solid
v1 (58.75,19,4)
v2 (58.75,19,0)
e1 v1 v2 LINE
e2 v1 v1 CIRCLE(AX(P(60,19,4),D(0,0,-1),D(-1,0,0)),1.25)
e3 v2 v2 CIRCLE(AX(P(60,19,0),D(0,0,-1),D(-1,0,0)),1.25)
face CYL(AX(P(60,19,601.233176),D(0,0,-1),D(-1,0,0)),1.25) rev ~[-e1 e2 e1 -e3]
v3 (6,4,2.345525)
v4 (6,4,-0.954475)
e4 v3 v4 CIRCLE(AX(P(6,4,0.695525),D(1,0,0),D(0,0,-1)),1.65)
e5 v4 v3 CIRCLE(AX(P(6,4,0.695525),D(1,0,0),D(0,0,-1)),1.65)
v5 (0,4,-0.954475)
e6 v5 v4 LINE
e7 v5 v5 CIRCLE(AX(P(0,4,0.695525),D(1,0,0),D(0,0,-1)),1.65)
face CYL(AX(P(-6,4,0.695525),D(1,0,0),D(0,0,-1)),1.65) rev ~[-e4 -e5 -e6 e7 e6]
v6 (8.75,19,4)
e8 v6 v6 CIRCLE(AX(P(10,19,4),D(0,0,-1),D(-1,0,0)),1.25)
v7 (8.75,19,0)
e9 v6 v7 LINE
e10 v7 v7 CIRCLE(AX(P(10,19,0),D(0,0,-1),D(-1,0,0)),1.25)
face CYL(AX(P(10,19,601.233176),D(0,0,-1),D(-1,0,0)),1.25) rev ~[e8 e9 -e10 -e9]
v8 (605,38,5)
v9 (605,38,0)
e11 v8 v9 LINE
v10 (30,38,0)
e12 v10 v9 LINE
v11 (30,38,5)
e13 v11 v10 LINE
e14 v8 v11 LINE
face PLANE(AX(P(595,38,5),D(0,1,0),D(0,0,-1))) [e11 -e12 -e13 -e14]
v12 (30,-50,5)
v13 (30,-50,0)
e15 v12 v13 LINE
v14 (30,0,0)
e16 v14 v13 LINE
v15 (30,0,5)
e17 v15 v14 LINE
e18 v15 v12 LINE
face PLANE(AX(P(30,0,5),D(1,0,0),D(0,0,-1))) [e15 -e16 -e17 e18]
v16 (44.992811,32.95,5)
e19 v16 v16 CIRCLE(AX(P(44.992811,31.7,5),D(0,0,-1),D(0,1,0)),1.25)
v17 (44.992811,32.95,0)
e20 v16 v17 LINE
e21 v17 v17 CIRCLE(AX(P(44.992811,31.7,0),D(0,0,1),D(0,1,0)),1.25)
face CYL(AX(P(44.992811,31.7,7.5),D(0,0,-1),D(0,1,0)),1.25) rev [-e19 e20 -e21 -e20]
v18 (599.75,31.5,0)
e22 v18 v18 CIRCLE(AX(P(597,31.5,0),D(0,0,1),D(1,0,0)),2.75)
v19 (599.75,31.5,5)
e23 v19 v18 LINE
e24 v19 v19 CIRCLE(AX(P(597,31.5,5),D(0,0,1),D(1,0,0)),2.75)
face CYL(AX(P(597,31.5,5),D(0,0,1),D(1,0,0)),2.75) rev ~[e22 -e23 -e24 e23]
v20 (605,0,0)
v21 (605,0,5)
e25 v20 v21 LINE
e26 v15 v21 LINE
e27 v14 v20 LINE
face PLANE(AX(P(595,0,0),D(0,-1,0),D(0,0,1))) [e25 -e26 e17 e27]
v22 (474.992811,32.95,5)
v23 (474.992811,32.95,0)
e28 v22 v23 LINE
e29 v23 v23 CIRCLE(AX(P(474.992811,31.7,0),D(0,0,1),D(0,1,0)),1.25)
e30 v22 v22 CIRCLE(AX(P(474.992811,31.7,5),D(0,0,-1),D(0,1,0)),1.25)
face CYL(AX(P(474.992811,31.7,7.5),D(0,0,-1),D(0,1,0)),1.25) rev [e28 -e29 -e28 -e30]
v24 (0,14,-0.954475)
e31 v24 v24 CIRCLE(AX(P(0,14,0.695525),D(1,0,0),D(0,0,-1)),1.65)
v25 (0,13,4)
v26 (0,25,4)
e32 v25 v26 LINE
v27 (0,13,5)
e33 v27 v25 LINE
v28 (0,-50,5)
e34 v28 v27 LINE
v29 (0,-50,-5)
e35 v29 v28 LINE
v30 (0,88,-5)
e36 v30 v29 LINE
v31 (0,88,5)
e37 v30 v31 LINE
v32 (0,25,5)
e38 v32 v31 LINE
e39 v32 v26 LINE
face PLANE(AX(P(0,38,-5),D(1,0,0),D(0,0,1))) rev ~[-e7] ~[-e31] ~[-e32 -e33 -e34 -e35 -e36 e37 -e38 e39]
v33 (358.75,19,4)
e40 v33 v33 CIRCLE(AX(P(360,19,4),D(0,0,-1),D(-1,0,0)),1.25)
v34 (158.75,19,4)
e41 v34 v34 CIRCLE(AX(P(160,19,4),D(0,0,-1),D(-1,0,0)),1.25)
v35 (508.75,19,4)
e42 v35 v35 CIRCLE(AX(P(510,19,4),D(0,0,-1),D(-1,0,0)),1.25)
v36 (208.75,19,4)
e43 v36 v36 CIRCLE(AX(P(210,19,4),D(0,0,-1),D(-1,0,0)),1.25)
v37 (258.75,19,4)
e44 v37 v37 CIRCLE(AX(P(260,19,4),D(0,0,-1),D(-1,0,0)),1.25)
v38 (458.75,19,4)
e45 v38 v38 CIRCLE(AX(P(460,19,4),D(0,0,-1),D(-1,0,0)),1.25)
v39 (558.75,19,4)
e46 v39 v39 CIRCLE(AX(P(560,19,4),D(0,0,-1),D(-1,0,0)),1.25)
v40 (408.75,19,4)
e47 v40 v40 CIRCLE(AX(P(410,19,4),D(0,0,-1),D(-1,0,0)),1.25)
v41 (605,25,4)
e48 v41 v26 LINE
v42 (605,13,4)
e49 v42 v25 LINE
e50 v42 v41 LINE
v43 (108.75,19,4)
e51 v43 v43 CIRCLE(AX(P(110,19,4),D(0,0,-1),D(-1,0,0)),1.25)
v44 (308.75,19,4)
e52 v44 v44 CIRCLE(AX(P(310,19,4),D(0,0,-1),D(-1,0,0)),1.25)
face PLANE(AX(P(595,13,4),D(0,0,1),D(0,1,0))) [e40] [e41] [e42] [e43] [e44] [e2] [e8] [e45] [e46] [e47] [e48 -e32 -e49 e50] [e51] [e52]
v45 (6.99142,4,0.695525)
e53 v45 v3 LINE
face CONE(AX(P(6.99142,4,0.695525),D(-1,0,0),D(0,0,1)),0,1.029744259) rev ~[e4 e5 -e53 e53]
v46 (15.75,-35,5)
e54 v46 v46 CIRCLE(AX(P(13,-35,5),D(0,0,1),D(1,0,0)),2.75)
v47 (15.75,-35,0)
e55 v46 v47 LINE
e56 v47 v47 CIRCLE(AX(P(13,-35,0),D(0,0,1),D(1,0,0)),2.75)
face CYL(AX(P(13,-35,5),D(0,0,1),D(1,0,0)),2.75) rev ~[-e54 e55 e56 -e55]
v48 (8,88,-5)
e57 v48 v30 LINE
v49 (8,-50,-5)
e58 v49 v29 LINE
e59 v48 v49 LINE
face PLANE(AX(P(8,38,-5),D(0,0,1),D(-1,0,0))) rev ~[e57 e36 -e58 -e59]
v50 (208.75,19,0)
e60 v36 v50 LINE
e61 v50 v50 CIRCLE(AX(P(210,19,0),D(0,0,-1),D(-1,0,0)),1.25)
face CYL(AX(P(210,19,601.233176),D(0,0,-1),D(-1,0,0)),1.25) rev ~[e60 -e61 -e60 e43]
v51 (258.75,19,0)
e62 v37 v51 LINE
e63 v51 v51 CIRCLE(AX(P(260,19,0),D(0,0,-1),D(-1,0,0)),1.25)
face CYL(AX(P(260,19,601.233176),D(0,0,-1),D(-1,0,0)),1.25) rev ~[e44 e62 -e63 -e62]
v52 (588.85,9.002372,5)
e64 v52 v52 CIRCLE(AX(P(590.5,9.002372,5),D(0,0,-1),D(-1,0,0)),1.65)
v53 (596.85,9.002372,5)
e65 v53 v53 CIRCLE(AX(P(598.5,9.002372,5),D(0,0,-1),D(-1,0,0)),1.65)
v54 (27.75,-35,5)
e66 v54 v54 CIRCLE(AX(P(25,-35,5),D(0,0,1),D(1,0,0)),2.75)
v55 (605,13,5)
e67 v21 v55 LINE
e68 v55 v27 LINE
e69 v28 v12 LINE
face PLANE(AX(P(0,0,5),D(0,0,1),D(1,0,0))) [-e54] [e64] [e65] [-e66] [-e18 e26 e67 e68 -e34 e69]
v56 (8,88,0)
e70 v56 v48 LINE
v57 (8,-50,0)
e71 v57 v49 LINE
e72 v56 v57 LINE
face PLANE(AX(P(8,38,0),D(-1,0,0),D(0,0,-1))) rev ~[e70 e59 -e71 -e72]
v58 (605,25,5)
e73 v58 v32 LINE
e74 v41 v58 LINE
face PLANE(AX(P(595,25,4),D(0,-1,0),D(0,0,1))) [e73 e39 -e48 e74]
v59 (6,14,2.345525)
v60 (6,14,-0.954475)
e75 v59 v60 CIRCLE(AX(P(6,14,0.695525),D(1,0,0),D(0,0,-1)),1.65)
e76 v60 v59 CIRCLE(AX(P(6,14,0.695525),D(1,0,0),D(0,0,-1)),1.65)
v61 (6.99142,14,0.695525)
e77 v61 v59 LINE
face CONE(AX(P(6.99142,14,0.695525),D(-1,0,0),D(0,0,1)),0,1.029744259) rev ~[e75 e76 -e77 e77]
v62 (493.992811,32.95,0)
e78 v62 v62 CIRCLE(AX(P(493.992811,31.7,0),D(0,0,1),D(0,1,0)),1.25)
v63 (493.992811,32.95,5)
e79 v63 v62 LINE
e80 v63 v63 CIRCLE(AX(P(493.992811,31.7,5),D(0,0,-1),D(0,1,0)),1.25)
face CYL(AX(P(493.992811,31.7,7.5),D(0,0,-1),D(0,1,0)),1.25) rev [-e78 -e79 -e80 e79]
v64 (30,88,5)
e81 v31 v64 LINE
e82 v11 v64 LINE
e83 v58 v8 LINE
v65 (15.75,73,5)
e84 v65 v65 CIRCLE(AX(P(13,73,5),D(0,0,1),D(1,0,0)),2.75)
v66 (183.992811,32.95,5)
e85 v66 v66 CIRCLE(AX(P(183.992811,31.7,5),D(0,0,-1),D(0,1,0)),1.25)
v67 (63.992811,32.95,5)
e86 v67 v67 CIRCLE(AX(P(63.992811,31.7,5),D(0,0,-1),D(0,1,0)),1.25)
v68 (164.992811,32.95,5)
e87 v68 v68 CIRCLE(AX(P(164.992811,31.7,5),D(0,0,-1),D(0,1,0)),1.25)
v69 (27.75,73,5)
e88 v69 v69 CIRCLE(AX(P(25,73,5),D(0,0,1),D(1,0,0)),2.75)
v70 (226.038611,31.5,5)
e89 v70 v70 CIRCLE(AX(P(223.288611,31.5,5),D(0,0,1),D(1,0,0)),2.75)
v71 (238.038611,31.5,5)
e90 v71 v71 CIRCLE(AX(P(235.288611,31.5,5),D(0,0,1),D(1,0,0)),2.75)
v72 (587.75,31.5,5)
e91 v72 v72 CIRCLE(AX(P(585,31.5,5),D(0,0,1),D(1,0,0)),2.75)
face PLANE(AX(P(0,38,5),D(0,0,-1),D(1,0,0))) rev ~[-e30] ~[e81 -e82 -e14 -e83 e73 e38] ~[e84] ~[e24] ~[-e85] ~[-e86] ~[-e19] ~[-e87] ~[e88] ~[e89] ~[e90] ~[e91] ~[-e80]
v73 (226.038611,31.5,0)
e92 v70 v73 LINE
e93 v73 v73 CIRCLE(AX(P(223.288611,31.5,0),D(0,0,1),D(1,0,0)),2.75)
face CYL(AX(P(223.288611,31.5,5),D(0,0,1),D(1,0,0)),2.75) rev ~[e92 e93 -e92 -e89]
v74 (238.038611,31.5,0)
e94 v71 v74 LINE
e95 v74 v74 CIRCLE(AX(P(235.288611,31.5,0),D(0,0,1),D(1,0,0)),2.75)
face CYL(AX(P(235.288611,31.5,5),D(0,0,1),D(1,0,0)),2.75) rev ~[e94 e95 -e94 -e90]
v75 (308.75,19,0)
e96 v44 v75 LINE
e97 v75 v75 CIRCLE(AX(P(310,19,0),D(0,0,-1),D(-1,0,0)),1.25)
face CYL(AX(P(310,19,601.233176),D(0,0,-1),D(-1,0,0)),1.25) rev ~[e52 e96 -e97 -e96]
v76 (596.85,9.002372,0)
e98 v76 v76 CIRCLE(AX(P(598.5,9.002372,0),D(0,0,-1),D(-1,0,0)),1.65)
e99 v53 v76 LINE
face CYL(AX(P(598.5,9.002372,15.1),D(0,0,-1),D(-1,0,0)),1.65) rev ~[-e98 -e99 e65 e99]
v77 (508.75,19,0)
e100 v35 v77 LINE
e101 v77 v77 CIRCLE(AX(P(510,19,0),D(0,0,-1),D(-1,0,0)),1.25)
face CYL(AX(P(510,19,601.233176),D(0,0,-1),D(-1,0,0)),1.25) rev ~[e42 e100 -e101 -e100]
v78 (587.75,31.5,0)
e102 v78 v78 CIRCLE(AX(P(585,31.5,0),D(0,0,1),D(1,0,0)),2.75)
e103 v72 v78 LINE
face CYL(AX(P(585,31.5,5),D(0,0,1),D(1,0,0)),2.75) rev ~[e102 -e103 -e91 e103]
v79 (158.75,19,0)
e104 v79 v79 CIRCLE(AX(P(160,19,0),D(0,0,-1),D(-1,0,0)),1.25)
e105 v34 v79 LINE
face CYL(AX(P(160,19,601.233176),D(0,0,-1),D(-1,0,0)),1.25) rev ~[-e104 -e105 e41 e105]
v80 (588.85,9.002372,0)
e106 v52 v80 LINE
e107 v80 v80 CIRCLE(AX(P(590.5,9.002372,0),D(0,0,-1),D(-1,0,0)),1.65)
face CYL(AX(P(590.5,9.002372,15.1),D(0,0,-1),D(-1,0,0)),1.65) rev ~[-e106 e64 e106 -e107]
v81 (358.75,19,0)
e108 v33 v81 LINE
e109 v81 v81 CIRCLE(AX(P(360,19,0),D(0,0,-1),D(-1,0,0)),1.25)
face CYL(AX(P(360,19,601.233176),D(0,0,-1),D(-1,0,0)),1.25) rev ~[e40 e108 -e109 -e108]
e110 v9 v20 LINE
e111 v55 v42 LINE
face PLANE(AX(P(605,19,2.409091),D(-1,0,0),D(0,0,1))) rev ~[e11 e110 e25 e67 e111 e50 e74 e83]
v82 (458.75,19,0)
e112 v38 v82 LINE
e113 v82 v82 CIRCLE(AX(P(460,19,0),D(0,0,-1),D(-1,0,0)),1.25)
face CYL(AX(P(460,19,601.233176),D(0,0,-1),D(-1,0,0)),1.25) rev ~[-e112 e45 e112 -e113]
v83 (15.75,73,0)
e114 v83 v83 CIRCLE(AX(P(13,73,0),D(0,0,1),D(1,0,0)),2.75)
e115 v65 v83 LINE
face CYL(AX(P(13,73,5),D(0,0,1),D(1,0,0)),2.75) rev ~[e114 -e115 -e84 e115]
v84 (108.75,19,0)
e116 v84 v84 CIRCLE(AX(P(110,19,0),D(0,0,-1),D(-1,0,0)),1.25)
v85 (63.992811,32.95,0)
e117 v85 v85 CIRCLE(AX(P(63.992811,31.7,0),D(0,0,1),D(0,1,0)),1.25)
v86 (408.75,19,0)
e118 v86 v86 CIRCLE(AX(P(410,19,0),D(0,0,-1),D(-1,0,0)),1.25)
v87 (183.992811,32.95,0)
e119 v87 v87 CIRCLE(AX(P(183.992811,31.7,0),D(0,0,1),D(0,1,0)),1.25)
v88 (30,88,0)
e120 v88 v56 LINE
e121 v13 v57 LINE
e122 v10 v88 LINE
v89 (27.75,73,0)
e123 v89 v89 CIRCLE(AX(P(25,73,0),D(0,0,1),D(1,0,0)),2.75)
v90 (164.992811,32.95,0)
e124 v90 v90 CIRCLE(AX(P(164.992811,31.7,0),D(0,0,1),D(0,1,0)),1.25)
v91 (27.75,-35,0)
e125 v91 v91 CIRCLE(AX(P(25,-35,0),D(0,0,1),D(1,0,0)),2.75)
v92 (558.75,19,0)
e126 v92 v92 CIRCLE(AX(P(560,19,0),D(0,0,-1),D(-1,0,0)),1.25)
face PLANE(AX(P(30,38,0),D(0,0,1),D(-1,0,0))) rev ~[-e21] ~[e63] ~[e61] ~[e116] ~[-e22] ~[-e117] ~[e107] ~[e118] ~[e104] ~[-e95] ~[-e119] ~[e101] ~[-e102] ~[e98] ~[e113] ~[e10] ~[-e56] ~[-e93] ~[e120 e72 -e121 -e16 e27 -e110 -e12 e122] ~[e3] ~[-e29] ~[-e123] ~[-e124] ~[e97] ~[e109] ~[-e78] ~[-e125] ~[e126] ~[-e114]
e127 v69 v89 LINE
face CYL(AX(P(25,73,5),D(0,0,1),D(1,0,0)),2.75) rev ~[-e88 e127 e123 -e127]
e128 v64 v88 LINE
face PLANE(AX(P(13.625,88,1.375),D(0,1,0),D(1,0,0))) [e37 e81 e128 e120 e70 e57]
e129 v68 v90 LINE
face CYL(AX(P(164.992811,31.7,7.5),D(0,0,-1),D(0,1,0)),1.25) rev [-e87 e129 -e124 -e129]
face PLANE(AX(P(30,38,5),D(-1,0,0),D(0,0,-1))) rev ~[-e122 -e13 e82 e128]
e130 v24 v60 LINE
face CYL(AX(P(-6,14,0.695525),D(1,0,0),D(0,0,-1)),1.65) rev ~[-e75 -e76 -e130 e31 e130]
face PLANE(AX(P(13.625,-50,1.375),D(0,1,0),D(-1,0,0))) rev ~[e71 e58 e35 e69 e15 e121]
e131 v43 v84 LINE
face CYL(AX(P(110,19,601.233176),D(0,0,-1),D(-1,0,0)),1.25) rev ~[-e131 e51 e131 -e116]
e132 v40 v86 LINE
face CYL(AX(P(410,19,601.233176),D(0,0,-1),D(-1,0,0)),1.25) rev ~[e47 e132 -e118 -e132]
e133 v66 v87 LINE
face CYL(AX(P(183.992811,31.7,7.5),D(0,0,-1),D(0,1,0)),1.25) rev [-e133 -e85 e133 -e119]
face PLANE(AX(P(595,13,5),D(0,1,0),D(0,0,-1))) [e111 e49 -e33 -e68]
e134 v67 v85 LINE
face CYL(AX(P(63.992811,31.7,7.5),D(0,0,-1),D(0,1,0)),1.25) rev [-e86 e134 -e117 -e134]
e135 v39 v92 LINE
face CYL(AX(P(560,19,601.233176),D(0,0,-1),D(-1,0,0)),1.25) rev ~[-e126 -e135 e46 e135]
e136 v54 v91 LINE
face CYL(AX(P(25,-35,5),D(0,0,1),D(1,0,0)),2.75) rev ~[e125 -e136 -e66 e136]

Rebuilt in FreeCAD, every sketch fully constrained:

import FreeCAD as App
import Part
import Sketcher
Q = App.Units.Quantity

doc = App.newDocument("Part")
body = doc.addObject("PartDesign::Body", "Body")

sketch1 = body.newObject("Sketcher::SketchObject", "Sketch")
sketch1.AttachmentSupport = (doc.getObject("XY_Plane"), [""])
sketch1.MapMode = "FlatFace"
sketch1.addGeometry([
    Part.LineSegment(App.Vector(0, 38, 0), App.Vector(0, 0, 0)),
    Part.LineSegment(App.Vector(0, 0, 0), App.Vector(595, 0, 0)),
    Part.LineSegment(App.Vector(595, 0, 0), App.Vector(595, 38, 0)),
    Part.LineSegment(App.Vector(595, 38, 0), App.Vector(0, 38, 0)),
], False)
sketch1.addConstraint([
    Sketcher.Constraint("Coincident", 0, 2, 1, 1),
    Sketcher.Constraint("Coincident", 1, 2, 2, 1),
    Sketcher.Constraint("Coincident", 2, 2, 3, 1),
    Sketcher.Constraint("Coincident", 3, 2, 0, 1),
    Sketcher.Constraint("Vertical", 0),
    Sketcher.Constraint("Horizontal", 1),
    Sketcher.Constraint("Vertical", 2),
    Sketcher.Constraint("Horizontal", 3),
    Sketcher.Constraint("Coincident", 0, 2, -1, 1),
    Sketcher.Constraint("DistanceX", 1, 1, 1, 2, Q("595 mm")),
    Sketcher.Constraint("DistanceY", 0, 2, 0, 1, Q("38 mm")),
])
pad1 = body.newObject("PartDesign::Pad", "Pad")
pad1.Profile = sketch1
pad1.Length = 5

sketch2 = body.newObject("Sketcher::SketchObject", "Sketch001")
sketch2.AttachmentSupport = (doc.getObject("XY_Plane"), [""])
sketch2.MapMode = "FlatFace"
sketch2.AttachmentOffset = App.Placement(App.Vector(0, 0, 5), App.Rotation())
sketch2.addGeometry(Part.Circle(App.Vector(10, 19, 0), App.Vector(0, 0, 1), 1.2), False)
sketch2.addConstraint([
    Sketcher.Constraint("Diameter", 0, Q("2.5 mm")),
    Sketcher.Constraint("DistanceX", -1, 1, 0, 3, Q("10 mm")),
    Sketcher.Constraint("DistanceY", -1, 1, 0, 3, Q("19 mm")),
])
doc.recompute()
hole = body.newObject("PartDesign::Hole", "Hole")
hole.Profile = sketch2
hole.ThreadType = "None"
hole.Diameter = 2.5
hole.DepthType = "ThroughAll"
doc.recompute()

linearpattern = body.newObject("PartDesign::LinearPattern", "LinearPattern")
linearpattern.Originals = [hole]
linearpattern.Direction = (doc.getObject("X_Axis"), [""])
linearpattern.Mode = "offset"
linearpattern.Offset = 50
linearpattern.Occurrences = 12
body.Tip = linearpattern

sketch3 = body.newObject("Sketcher::SketchObject", "Sketch002")
sketch3.AttachmentSupport = (doc.getObject("XY_Plane"), [""])
sketch3.MapMode = "FlatFace"
sketch3.AttachmentOffset = App.Placement(App.Vector(0, 0, 5), App.Rotation())
sketch3.addGeometry([
    Part.LineSegment(App.Vector(0, 25, 0), App.Vector(0, 13, 0)),
    Part.LineSegment(App.Vector(0, 13, 0), App.Vector(595, 13, 0)),
    Part.LineSegment(App.Vector(595, 13, 0), App.Vector(595, 25, 0)),
    Part.LineSegment(App.Vector(595, 25, 0), App.Vector(0, 25, 0)),
], False)
sketch3.addConstraint([
    Sketcher.Constraint("Coincident", 0, 2, 1, 1),
    Sketcher.Constraint("Coincident", 1, 2, 2, 1),
    Sketcher.Constraint("Coincident", 2, 2, 3, 1),
    Sketcher.Constraint("Coincident", 3, 2, 0, 1),
    Sketcher.Constraint("Vertical", 0),
    Sketcher.Constraint("Horizontal", 1),
    Sketcher.Constraint("Vertical", 2),
    Sketcher.Constraint("Horizontal", 3),
    Sketcher.Constraint("PointOnObject", 0, 2, -2),
    Sketcher.Constraint("DistanceX", 1, 1, 1, 2, Q("595 mm")),
    Sketcher.Constraint("DistanceY", 0, 2, 0, 1, Q("12 mm")),
    Sketcher.Constraint("DistanceY", -1, 1, 0, 2, Q("13 mm")),
])
pocket1 = body.newObject("PartDesign::Pocket", "Pocket")
pocket1.Profile = sketch3
pocket1.Length = 1

sketch4 = body.newObject("Sketcher::SketchObject", "Sketch003")
sketch4.AttachmentSupport = (doc.getObject("YZ_Plane"), [""])
sketch4.MapMode = "FlatFace"
sketch4.addGeometry([
    Part.LineSegment(App.Vector(38, -5, 0), App.Vector(0, -5, 0)),
    Part.LineSegment(App.Vector(0, -5, 0), App.Vector(0, 0, 0)),
    Part.LineSegment(App.Vector(0, 0, 0), App.Vector(38, 0, 0)),
    Part.LineSegment(App.Vector(38, 0, 0), App.Vector(38, -5, 0)),
], False)
sketch4.addConstraint([
    Sketcher.Constraint("Coincident", 0, 2, 1, 1),
    Sketcher.Constraint("Coincident", 1, 2, 2, 1),
    Sketcher.Constraint("Coincident", 2, 2, 3, 1),
    Sketcher.Constraint("Coincident", 3, 2, 0, 1),
    Sketcher.Constraint("Horizontal", 0),
    Sketcher.Constraint("Vertical", 1),
    Sketcher.Constraint("Horizontal", 2),
    Sketcher.Constraint("Vertical", 3),
    Sketcher.Constraint("Coincident", 1, 2, -1, 1),
    Sketcher.Constraint("DistanceX", 0, 2, 0, 1, Q("38 mm")),
    Sketcher.Constraint("DistanceY", 1, 1, 1, 2, Q("5 mm")),
])
pad2 = body.newObject("PartDesign::Pad", "Pad001")
pad2.Profile = sketch4
pad2.Length = 8

sketch5 = body.newObject("Sketcher::SketchObject", "Sketch004")
sketch5.AttachmentSupport = (doc.getObject("YZ_Plane"), [""])
sketch5.MapMode = "FlatFace"
sketch5.addGeometry([
    Part.Circle(App.Vector(14, 0.7, 0), App.Vector(0, 0, 1), 1.6),
    Part.Circle(App.Vector(4, 0.7, 0), App.Vector(0, 0, 1), 1.6),
], False)
sketch5.addConstraint([
    Sketcher.Constraint("Equal", 0, 1),
    Sketcher.Constraint("Horizontal", 0, 3, 1, 3),
    Sketcher.Constraint("Diameter", 0, Q("3.3 mm")),
    Sketcher.Constraint("DistanceX", -1, 1, 0, 3, Q("14 mm")),
    Sketcher.Constraint("DistanceX", -1, 1, 1, 3, Q("4 mm")),
    Sketcher.Constraint("DistanceY", -1, 1, 0, 3, Q("0.695525 mm")),
])
doc.recompute()
hole2 = body.newObject("PartDesign::Hole", "Hole001")
hole2.Profile = sketch5
hole2.ThreadType = "None"
hole2.Diameter = 3.3
hole2.DepthType = "Dimension"
hole2.Depth = 6
hole2.DrillPoint = "Angled"
hole2.DrillPointAngle = 118
hole2.Reversed = True

sketch6 = body.newObject("Sketcher::SketchObject", "Sketch005")
sketch6.AttachmentSupport = (doc.getObject("YZ_Plane"), [""])
sketch6.MapMode = "FlatFace"
sketch6.AttachmentOffset = App.Placement(App.Vector(0, 0, 595), App.Rotation())
sketch6.addGeometry([
    Part.LineSegment(App.Vector(13, 5, 0), App.Vector(0, 5, 0)),
    Part.LineSegment(App.Vector(0, 5, 0), App.Vector(0, 0, 0)),
    Part.LineSegment(App.Vector(0, 0, 0), App.Vector(38, 0, 0)),
    Part.LineSegment(App.Vector(38, 0, 0), App.Vector(38, 5, 0)),
    Part.LineSegment(App.Vector(38, 5, 0), App.Vector(25, 5, 0)),
    Part.LineSegment(App.Vector(25, 5, 0), App.Vector(25, 4, 0)),
    Part.LineSegment(App.Vector(25, 4, 0), App.Vector(13, 4, 0)),
    Part.LineSegment(App.Vector(13, 4, 0), App.Vector(13, 5, 0)),
], False)
sketch6.addConstraint([
    Sketcher.Constraint("Coincident", 0, 2, 1, 1),
    Sketcher.Constraint("Coincident", 1, 2, 2, 1),
    Sketcher.Constraint("Coincident", 2, 2, 3, 1),
    Sketcher.Constraint("Coincident", 3, 2, 4, 1),
    Sketcher.Constraint("Coincident", 4, 2, 5, 1),
    Sketcher.Constraint("Coincident", 5, 2, 6, 1),
    Sketcher.Constraint("Coincident", 6, 2, 7, 1),
    Sketcher.Constraint("Coincident", 7, 2, 0, 1),
    Sketcher.Constraint("Horizontal", 0),
    Sketcher.Constraint("Vertical", 1),
    Sketcher.Constraint("Horizontal", 2),
    Sketcher.Constraint("Vertical", 3),
    Sketcher.Constraint("Horizontal", 4),
    Sketcher.Constraint("Vertical", 5),
    Sketcher.Constraint("Horizontal", 6),
    Sketcher.Constraint("Vertical", 7),
    Sketcher.Constraint("Coincident", 1, 2, -1, 1),
    Sketcher.Constraint("Horizontal", 0, 2, 3, 2),
    Sketcher.Constraint("Equal", 0, 4),
    Sketcher.Constraint("DistanceX", 0, 2, 0, 1, Q("13 mm")),
    Sketcher.Constraint("DistanceX", 2, 1, 2, 2, Q("38 mm")),
    Sketcher.Constraint("DistanceY", 1, 2, 1, 1, Q("5 mm")),
    Sketcher.Constraint("DistanceY", 5, 2, 5, 1, Q("1 mm")),
])
pad3 = body.newObject("PartDesign::Pad", "Pad002")
pad3.Profile = sketch6
pad3.Length = 10

sketch7 = body.newObject("Sketcher::SketchObject", "Sketch006")
sketch7.AttachmentSupport = (doc.getObject("XY_Plane"), [""])
sketch7.MapMode = "FlatFace"
sketch7.AttachmentOffset = App.Placement(App.Vector(0, 0, 5), App.Rotation())
sketch7.addGeometry([
    Part.Circle(App.Vector(598.5, 9, 0), App.Vector(0, 0, 1), 1.6),
    Part.Circle(App.Vector(590.5, 9, 0), App.Vector(0, 0, 1), 1.6),
], False)
sketch7.addConstraint([
    Sketcher.Constraint("Equal", 0, 1),
    Sketcher.Constraint("Horizontal", 0, 3, 1, 3),
    Sketcher.Constraint("Diameter", 0, Q("3.3 mm")),
    Sketcher.Constraint("DistanceX", 1, 3, 0, 3, Q("8 mm")),
    Sketcher.Constraint("DistanceX", -1, 1, 0, 3, Q("598.5 mm")),
    Sketcher.Constraint("DistanceY", -1, 1, 0, 3, Q("9.002372 mm")),
])
doc.recompute()
hole3 = body.newObject("PartDesign::Hole", "Hole002")
hole3.Profile = sketch7
hole3.ThreadType = "None"
hole3.Diameter = 3.3
hole3.DepthType = "Dimension"
hole3.Depth = 10.1
hole3.DrillPoint = "Angled"
hole3.DrillPointAngle = 118

sketch8 = body.newObject("Sketcher::SketchObject", "Sketch007")
sketch8.AttachmentSupport = (doc.getObject("YZ_Plane"), [""])
sketch8.MapMode = "FlatFace"
sketch8.AttachmentOffset = App.Placement(App.Vector(0, 0, 44.992811), App.Rotation())
sketch8.addGeometry([
    Part.LineSegment(App.Vector(31.7, 8.3, 0), App.Vector(31.7, 0, 0)),
    Part.LineSegment(App.Vector(31.7, 0, 0), App.Vector(33, 0, 0)),
    Part.LineSegment(App.Vector(33, 0, 0), App.Vector(33, 7.5, 0)),
    Part.LineSegment(App.Vector(33, 7.5, 0), App.Vector(31.7, 8.3, 0)),
], False)
sketch8.addGeometry(Part.LineSegment(App.Vector(31.7, 0, 0), App.Vector(31.7, 8.3, 0)), True)
sketch8.addConstraint([
    Sketcher.Constraint("Coincident", 0, 2, 1, 1),
    Sketcher.Constraint("Coincident", 1, 2, 2, 1),
    Sketcher.Constraint("Coincident", 2, 2, 3, 1),
    Sketcher.Constraint("Coincident", 3, 2, 0, 1),
    Sketcher.Constraint("Vertical", 0),
    Sketcher.Constraint("Horizontal", 1),
    Sketcher.Constraint("Vertical", 2),
    Sketcher.Constraint("Vertical", 4),
    Sketcher.Constraint("Coincident", 4, 1, 0, 2),
    Sketcher.Constraint("PointOnObject", 0, 2, -1),
    Sketcher.Constraint("Equal", 0, 4),
    Sketcher.Constraint("Angle", 3, Q("149 deg")),
    Sketcher.Constraint("DistanceY", 2, 1, 2, 2, Q("7.5 mm")),
    Sketcher.Constraint("DistanceX", 1, 1, 1, 2, Q("1.25 mm")),
    Sketcher.Constraint("DistanceX", -1, 1, 0, 2, Q("31.7 mm")),
])
groove = body.newObject("PartDesign::Groove", "Groove")
groove.Profile = sketch8
groove.ReferenceAxis = (sketch8, ["Axis0"])
groove.Angle = 360
doc.recompute()

linearpattern2 = body.newObject("PartDesign::LinearPattern", "LinearPattern001")
linearpattern2.Originals = [groove]
linearpattern2.Direction = (doc.getObject("X_Axis"), [""])
linearpattern2.Mode = "offset"
linearpattern2.Offset = 19
linearpattern2.Occurrences = 2
body.Tip = linearpattern2
doc.recompute()

linearpattern3 = body.newObject("PartDesign::LinearPattern", "LinearPattern002")
linearpattern3.Originals = [groove]
linearpattern3.Direction = (doc.getObject("X_Axis"), [""])
linearpattern3.Mode = "offset"
linearpattern3.Offset = 120
linearpattern3.Occurrences = 2
body.Tip = linearpattern3

sketch9 = body.newObject("Sketcher::SketchObject", "Sketch008")
sketch9.AttachmentSupport = (doc.getObject("YZ_Plane"), [""])
sketch9.MapMode = "FlatFace"
sketch9.AttachmentOffset = App.Placement(App.Vector(0, 0, 183.992811), App.Rotation())
sketch9.addGeometry([
    Part.LineSegment(App.Vector(31.7, 8.3, 0), App.Vector(31.7, 0, 0)),
    Part.LineSegment(App.Vector(31.7, 0, 0), App.Vector(33, 0, 0)),
    Part.LineSegment(App.Vector(33, 0, 0), App.Vector(33, 7.5, 0)),
    Part.LineSegment(App.Vector(33, 7.5, 0), App.Vector(31.7, 8.3, 0)),
], False)
sketch9.addGeometry(Part.LineSegment(App.Vector(31.7, 0, 0), App.Vector(31.7, 8.3, 0)), True)
sketch9.addConstraint([
    Sketcher.Constraint("Coincident", 0, 2, 1, 1),
    Sketcher.Constraint("Coincident", 1, 2, 2, 1),
    Sketcher.Constraint("Coincident", 2, 2, 3, 1),
    Sketcher.Constraint("Coincident", 3, 2, 0, 1),
    Sketcher.Constraint("Vertical", 0),
    Sketcher.Constraint("Horizontal", 1),
    Sketcher.Constraint("Vertical", 2),
    Sketcher.Constraint("Vertical", 4),
    Sketcher.Constraint("Coincident", 4, 1, 0, 2),
    Sketcher.Constraint("PointOnObject", 0, 2, -1),
    Sketcher.Constraint("Equal", 0, 4),
    Sketcher.Constraint("Angle", 3, Q("149 deg")),
    Sketcher.Constraint("DistanceY", 2, 1, 2, 2, Q("7.5 mm")),
    Sketcher.Constraint("DistanceX", 1, 1, 1, 2, Q("1.25 mm")),
    Sketcher.Constraint("DistanceX", -1, 1, 0, 2, Q("31.7 mm")),
])
groove2 = body.newObject("PartDesign::Groove", "Groove001")
groove2.Profile = sketch9
groove2.ReferenceAxis = (sketch9, ["Axis0"])
groove2.Angle = 360
doc.recompute()

linearpattern4 = body.newObject("PartDesign::LinearPattern", "LinearPattern003")
linearpattern4.Originals = [groove]
linearpattern4.Direction = (doc.getObject("X_Axis"), [""])
linearpattern4.Mode = "offset"
linearpattern4.Offset = 430
linearpattern4.Occurrences = 2
body.Tip = linearpattern4

sketch10 = body.newObject("Sketcher::SketchObject", "Sketch009")
sketch10.AttachmentSupport = (doc.getObject("YZ_Plane"), [""])
sketch10.MapMode = "FlatFace"
sketch10.AttachmentOffset = App.Placement(App.Vector(0, 0, 493.992811), App.Rotation())
sketch10.addGeometry([
    Part.LineSegment(App.Vector(31.7, 8.3, 0), App.Vector(31.7, 0, 0)),
    Part.LineSegment(App.Vector(31.7, 0, 0), App.Vector(33, 0, 0)),
    Part.LineSegment(App.Vector(33, 0, 0), App.Vector(33, 7.5, 0)),
    Part.LineSegment(App.Vector(33, 7.5, 0), App.Vector(31.7, 8.3, 0)),
], False)
sketch10.addGeometry(Part.LineSegment(App.Vector(31.7, 0, 0), App.Vector(31.7, 8.3, 0)), True)
sketch10.addConstraint([
    Sketcher.Constraint("Coincident", 0, 2, 1, 1),
    Sketcher.Constraint("Coincident", 1, 2, 2, 1),
    Sketcher.Constraint("Coincident", 2, 2, 3, 1),
    Sketcher.Constraint("Coincident", 3, 2, 0, 1),
    Sketcher.Constraint("Vertical", 0),
    Sketcher.Constraint("Horizontal", 1),
    Sketcher.Constraint("Vertical", 2),
    Sketcher.Constraint("Vertical", 4),
    Sketcher.Constraint("Coincident", 4, 1, 0, 2),
    Sketcher.Constraint("PointOnObject", 0, 2, -1),
    Sketcher.Constraint("Equal", 0, 4),
    Sketcher.Constraint("Angle", 3, Q("149 deg")),
    Sketcher.Constraint("DistanceY", 2, 1, 2, 2, Q("7.5 mm")),
    Sketcher.Constraint("DistanceX", 1, 1, 1, 2, Q("1.25 mm")),
    Sketcher.Constraint("DistanceX", -1, 1, 0, 2, Q("31.7 mm")),
])
groove3 = body.newObject("PartDesign::Groove", "Groove002")
groove3.Profile = sketch10
groove3.ReferenceAxis = (sketch10, ["Axis0"])
groove3.Angle = 360

sketch11 = body.newObject("Sketcher::SketchObject", "Sketch010")
sketch11.AttachmentSupport = (doc.getObject("XZ_Plane"), [""])
sketch11.MapMode = "FlatFace"
sketch11.addGeometry([
    Part.LineSegment(App.Vector(0, -5, 0), App.Vector(8, -5, 0)),
    Part.LineSegment(App.Vector(8, -5, 0), App.Vector(8, 0, 0)),
    Part.LineSegment(App.Vector(8, 0, 0), App.Vector(30, 0, 0)),
    Part.LineSegment(App.Vector(30, 0, 0), App.Vector(30, 5, 0)),
    Part.LineSegment(App.Vector(30, 5, 0), App.Vector(0, 5, 0)),
    Part.LineSegment(App.Vector(0, 5, 0), App.Vector(0, -5, 0)),
], False)
sketch11.addConstraint([
    Sketcher.Constraint("Coincident", 0, 2, 1, 1),
    Sketcher.Constraint("Coincident", 1, 2, 2, 1),
    Sketcher.Constraint("Coincident", 2, 2, 3, 1),
    Sketcher.Constraint("Coincident", 3, 2, 4, 1),
    Sketcher.Constraint("Coincident", 4, 2, 5, 1),
    Sketcher.Constraint("Coincident", 5, 2, 0, 1),
    Sketcher.Constraint("Horizontal", 0),
    Sketcher.Constraint("Vertical", 1),
    Sketcher.Constraint("Horizontal", 2),
    Sketcher.Constraint("Vertical", 3),
    Sketcher.Constraint("Horizontal", 4),
    Sketcher.Constraint("Vertical", 5),
    Sketcher.Constraint("Symmetric", 4, 2, 5, 2, -1, 1),
    Sketcher.Constraint("PointOnObject", 1, 2, -1),
    Sketcher.Constraint("DistanceX", 0, 1, 0, 2, Q("8 mm")),
    Sketcher.Constraint("DistanceX", 2, 1, 2, 2, Q("22 mm")),
    Sketcher.Constraint("DistanceY", 1, 1, 1, 2, Q("5 mm")),
])
pad4 = body.newObject("PartDesign::Pad", "Pad003")
pad4.Profile = sketch11
pad4.Length = 50

sketch12 = body.newObject("Sketcher::SketchObject", "Sketch011")
sketch12.AttachmentSupport = (doc.getObject("XZ_Plane"), [""])
sketch12.MapMode = "FlatFace"
sketch12.AttachmentOffset = App.Placement(App.Vector(0, 0, -38), App.Rotation())
sketch12.addGeometry([
    Part.LineSegment(App.Vector(0, -5, 0), App.Vector(0, 5, 0)),
    Part.LineSegment(App.Vector(0, 5, 0), App.Vector(30, 5, 0)),
    Part.LineSegment(App.Vector(30, 5, 0), App.Vector(30, 0, 0)),
    Part.LineSegment(App.Vector(30, 0, 0), App.Vector(8, 0, 0)),
    Part.LineSegment(App.Vector(8, 0, 0), App.Vector(8, -5, 0)),
    Part.LineSegment(App.Vector(8, -5, 0), App.Vector(0, -5, 0)),
], False)
sketch12.addConstraint([
    Sketcher.Constraint("Coincident", 0, 2, 1, 1),
    Sketcher.Constraint("Coincident", 1, 2, 2, 1),
    Sketcher.Constraint("Coincident", 2, 2, 3, 1),
    Sketcher.Constraint("Coincident", 3, 2, 4, 1),
    Sketcher.Constraint("Coincident", 4, 2, 5, 1),
    Sketcher.Constraint("Coincident", 5, 2, 0, 1),
    Sketcher.Constraint("Vertical", 0),
    Sketcher.Constraint("Horizontal", 1),
    Sketcher.Constraint("Vertical", 2),
    Sketcher.Constraint("Horizontal", 3),
    Sketcher.Constraint("Vertical", 4),
    Sketcher.Constraint("Horizontal", 5),
    Sketcher.Constraint("Symmetric", 0, 2, 5, 2, -1, 1),
    Sketcher.Constraint("PointOnObject", 2, 2, -1),
    Sketcher.Constraint("DistanceX", 1, 1, 1, 2, Q("30 mm")),
    Sketcher.Constraint("DistanceX", 3, 2, 3, 1, Q("22 mm")),
    Sketcher.Constraint("DistanceY", 0, 1, 0, 2, Q("10 mm")),
])
pad5 = body.newObject("PartDesign::Pad", "Pad004")
pad5.Profile = sketch12
pad5.Length = 50
pad5.Reversed = True

sketch13 = body.newObject("Sketcher::SketchObject", "Sketch012")
sketch13.AttachmentSupport = (doc.getObject("XY_Plane"), [""])
sketch13.MapMode = "FlatFace"
sketch13.AttachmentOffset = App.Placement(App.Vector(0, 0, 5), App.Rotation())
sketch13.addGeometry([
    Part.Circle(App.Vector(25, 73, 0), App.Vector(0, 0, 1), 2.8),
    Part.Circle(App.Vector(13, 73, 0), App.Vector(0, 0, 1), 2.8),
    Part.Circle(App.Vector(13, -35, 0), App.Vector(0, 0, 1), 2.8),
    Part.Circle(App.Vector(25, -35, 0), App.Vector(0, 0, 1), 2.8),
], False)
sketch13.addConstraint([
    Sketcher.Constraint("Equal", 0, 1),
    Sketcher.Constraint("Equal", 1, 2),
    Sketcher.Constraint("Equal", 2, 3),
    Sketcher.Constraint("Horizontal", 0, 3, 1, 3),
    Sketcher.Constraint("Horizontal", 2, 3, 3, 3),
    Sketcher.Constraint("Vertical", 1, 3, 2, 3),
    Sketcher.Constraint("Vertical", 0, 3, 3, 3),
    Sketcher.Constraint("Diameter", 0, Q("5.5 mm")),
    Sketcher.Constraint("DistanceX", -1, 1, 0, 3, Q("25 mm")),
    Sketcher.Constraint("DistanceY", -1, 1, 0, 3, Q("73 mm")),
    Sketcher.Constraint("DistanceX", -1, 1, 1, 3, Q("13 mm")),
    Sketcher.Constraint("DistanceY", 2, 3, -1, 1, Q("35 mm")),
])
pocket2 = body.newObject("PartDesign::Pocket", "Pocket001")
pocket2.Profile = sketch13
pocket2.Length = 8

sketch14 = body.newObject("Sketcher::SketchObject", "Sketch013")
sketch14.AttachmentSupport = (doc.getObject("XY_Plane"), [""])
sketch14.MapMode = "FlatFace"
sketch14.AttachmentOffset = App.Placement(App.Vector(0, 0, 5), App.Rotation())
sketch14.addGeometry([
    Part.Circle(App.Vector(585, 31.5, 0), App.Vector(0, 0, 1), 2.8),
    Part.Circle(App.Vector(597, 31.5, 0), App.Vector(0, 0, 1), 2.8),
], False)
sketch14.addConstraint([
    Sketcher.Constraint("Equal", 0, 1),
    Sketcher.Constraint("Horizontal", 0, 3, 1, 3),
    Sketcher.Constraint("Diameter", 0, Q("5.5 mm")),
    Sketcher.Constraint("DistanceX", -1, 1, 0, 3, Q("585 mm")),
    Sketcher.Constraint("DistanceX", -1, 1, 1, 3, Q("597 mm")),
    Sketcher.Constraint("DistanceY", -1, 1, 0, 3, Q("31.5 mm")),
])
pocket3 = body.newObject("PartDesign::Pocket", "Pocket002")
pocket3.Profile = sketch14
pocket3.Length = 8

sketch15 = body.newObject("Sketcher::SketchObject", "Sketch014")
sketch15.AttachmentSupport = (doc.getObject("XY_Plane"), [""])
sketch15.MapMode = "FlatFace"
sketch15.AttachmentOffset = App.Placement(App.Vector(0, 0, 5), App.Rotation())
sketch15.addGeometry([
    Part.Circle(App.Vector(235.3, 31.5, 0), App.Vector(0, 0, 1), 2.8),
    Part.Circle(App.Vector(223.3, 31.5, 0), App.Vector(0, 0, 1), 2.8),
], False)
sketch15.addConstraint([
    Sketcher.Constraint("Equal", 0, 1),
    Sketcher.Constraint("Horizontal", 0, 3, 1, 3),
    Sketcher.Constraint("Diameter", 0, Q("5.5 mm")),
    Sketcher.Constraint("DistanceX", 1, 3, 0, 3, Q("12 mm")),
    Sketcher.Constraint("DistanceY", -1, 1, 0, 3, Q("31.5 mm")),
    Sketcher.Constraint("DistanceX", -1, 1, 0, 3, Q("235.288611 mm")),
])
pocket4 = body.newObject("PartDesign::Pocket", "Pocket003")
pocket4.Profile = sketch15
pocket4.Length = 8

doc.recompute()
